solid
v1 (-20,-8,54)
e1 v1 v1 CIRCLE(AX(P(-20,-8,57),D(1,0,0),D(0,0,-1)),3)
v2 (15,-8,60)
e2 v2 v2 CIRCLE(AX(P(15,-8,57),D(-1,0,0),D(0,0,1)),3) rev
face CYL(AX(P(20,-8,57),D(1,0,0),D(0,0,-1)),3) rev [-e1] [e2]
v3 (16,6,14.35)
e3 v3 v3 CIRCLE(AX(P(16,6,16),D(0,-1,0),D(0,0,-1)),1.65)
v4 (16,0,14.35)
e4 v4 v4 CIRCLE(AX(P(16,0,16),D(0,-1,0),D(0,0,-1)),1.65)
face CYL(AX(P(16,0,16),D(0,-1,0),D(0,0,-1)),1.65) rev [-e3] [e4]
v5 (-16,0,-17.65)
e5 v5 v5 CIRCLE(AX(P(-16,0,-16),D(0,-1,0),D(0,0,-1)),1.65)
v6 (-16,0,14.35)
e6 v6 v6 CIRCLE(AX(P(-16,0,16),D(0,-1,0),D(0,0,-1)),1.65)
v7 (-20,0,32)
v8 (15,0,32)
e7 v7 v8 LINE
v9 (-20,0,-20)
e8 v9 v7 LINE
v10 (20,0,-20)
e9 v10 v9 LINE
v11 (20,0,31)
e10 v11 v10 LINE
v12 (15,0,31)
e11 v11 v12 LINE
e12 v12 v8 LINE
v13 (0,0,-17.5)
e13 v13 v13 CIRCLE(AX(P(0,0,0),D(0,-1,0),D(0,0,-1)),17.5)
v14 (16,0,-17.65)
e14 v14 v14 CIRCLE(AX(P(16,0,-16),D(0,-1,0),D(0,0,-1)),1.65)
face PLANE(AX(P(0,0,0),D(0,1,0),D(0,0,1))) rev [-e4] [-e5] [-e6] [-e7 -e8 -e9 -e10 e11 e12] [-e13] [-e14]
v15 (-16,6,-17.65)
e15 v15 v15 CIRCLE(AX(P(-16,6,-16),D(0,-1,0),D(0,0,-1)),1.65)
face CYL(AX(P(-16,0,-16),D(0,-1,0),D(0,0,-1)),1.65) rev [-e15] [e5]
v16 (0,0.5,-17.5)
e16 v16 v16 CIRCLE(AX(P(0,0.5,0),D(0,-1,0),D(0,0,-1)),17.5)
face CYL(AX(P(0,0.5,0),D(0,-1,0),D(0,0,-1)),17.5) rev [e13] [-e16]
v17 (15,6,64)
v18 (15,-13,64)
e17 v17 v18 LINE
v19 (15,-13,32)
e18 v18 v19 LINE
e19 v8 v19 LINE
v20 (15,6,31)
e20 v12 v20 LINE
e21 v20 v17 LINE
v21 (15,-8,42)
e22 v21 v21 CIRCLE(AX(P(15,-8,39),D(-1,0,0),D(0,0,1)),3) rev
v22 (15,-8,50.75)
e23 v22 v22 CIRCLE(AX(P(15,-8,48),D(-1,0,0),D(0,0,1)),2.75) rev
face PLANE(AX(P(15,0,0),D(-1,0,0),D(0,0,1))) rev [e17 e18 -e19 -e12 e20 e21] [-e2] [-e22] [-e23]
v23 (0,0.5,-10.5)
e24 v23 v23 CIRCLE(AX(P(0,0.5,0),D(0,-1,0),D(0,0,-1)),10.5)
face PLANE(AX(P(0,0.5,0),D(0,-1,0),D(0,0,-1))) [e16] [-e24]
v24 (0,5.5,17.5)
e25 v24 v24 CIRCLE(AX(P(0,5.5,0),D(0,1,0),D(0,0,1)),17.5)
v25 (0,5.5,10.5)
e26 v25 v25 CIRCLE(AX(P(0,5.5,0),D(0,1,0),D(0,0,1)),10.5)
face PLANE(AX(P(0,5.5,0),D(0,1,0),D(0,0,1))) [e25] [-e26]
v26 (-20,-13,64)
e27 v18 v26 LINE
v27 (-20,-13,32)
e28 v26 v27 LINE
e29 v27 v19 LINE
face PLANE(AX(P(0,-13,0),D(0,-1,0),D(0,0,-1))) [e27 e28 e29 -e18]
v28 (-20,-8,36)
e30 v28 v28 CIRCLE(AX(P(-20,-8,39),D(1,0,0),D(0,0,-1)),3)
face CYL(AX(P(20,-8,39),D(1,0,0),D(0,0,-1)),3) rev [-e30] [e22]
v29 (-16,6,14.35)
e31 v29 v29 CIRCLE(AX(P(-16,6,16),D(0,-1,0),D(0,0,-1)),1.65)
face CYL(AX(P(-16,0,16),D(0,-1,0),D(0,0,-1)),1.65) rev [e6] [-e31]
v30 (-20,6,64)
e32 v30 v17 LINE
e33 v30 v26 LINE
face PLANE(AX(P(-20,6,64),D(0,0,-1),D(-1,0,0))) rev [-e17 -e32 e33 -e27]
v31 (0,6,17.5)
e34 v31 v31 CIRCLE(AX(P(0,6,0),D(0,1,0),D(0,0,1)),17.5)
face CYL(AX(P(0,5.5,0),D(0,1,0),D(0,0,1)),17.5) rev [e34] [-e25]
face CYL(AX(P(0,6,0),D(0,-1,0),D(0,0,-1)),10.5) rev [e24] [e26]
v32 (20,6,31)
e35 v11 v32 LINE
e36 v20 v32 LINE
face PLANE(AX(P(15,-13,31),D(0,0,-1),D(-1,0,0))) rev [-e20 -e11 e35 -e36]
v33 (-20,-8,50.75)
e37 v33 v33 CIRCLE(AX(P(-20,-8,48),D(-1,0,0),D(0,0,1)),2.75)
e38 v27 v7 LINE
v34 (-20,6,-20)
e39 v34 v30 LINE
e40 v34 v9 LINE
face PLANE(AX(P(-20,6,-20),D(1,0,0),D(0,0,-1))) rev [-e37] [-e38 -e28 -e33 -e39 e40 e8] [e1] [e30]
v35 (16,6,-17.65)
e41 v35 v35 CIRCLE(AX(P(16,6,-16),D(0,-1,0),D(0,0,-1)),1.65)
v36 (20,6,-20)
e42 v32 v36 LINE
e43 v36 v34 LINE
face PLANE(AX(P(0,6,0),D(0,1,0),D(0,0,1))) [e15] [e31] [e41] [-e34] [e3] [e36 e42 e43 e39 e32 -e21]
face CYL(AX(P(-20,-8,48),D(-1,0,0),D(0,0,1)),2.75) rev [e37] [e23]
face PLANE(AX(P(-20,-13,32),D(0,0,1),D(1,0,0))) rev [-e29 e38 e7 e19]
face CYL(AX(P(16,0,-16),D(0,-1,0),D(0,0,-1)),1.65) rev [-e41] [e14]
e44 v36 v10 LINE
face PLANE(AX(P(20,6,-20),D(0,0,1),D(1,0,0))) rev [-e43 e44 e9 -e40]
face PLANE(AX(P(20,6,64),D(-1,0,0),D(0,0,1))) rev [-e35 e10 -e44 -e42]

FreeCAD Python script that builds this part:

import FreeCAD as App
import Part
import Sketcher


def add_polygon(sketch, points):
    """Adds a closed chain of lines whose ends are joined by coincident constraints."""
    first, n = sketch.GeometryCount, len(points)
    for a, b in zip(points, points[1:] + points[:1]):
        sketch.addGeometry(Part.LineSegment(App.Vector(*a, 0), App.Vector(*b, 0)), False)
    for i in range(n):
        sketch.addConstraint(Sketcher.Constraint("Coincident", first + i, 2, first + (i + 1) % n, 1))

doc = App.newDocument("Part")
body = doc.addObject("PartDesign::Body", "Body")

# Sketch on XZ plane
sketch1 = doc.addObject("Sketcher::SketchObject", "Sketch")
body.addObject(sketch1)
sketch1.AttachmentSupport = (doc.XZ_Plane, [""])
sketch1.MapMode = "FlatFace"
add_polygon(sketch1, [(-20, -20), (-20, 64), (20, 64), (20, -20)])  # lines 0-3
sketch1.addGeometry(Part.Circle(App.Vector(0, 0, 0), App.Vector(0, 0, 1), 10.5), False)  # 4
sketch1.addConstraint(Sketcher.Constraint("Vertical", 0))
sketch1.addConstraint(Sketcher.Constraint("Horizontal", 1))
sketch1.addConstraint(Sketcher.Constraint("Vertical", 2))
sketch1.addConstraint(Sketcher.Constraint("Horizontal", 3))
sketch1.addConstraint(Sketcher.Constraint("Coincident", 4, 3, -1, 1))
sketch1.addConstraint(Sketcher.Constraint("Diameter", 4, 21.0))
sketch1.addConstraint(Sketcher.Constraint("DistanceX", 1, 1, 1, 2, 40.0))
sketch1.addConstraint(Sketcher.Constraint("DistanceY", 0, 1, 0, 2, 84.0))
sketch1.addConstraint(Sketcher.Constraint("DistanceX", 0, 2, -1, 1, 20.0))
sketch1.addConstraint(Sketcher.Constraint("DistanceY", -1, 1, 0, 2, 64.0))
pad1 = doc.addObject("PartDesign::Pad", "Pad")
body.addObject(pad1)
pad1.Profile = sketch1
pad1.Length = 6
pad1.Reversed = True

# Sketch on XZ plane
sketch2 = doc.addObject("Sketcher::SketchObject", "Sketch001")
body.addObject(sketch2)
sketch2.AttachmentSupport = (doc.XZ_Plane, [""])
sketch2.MapMode = "FlatFace"
add_polygon(sketch2, [(-20, 64), (-20, 32), (20, 32), (20, 64)])  # lines 0-3
sketch2.addConstraint(Sketcher.Constraint("Vertical", 0))
sketch2.addConstraint(Sketcher.Constraint("Horizontal", 1))
sketch2.addConstraint(Sketcher.Constraint("Vertical", 2))
sketch2.addConstraint(Sketcher.Constraint("Horizontal", 3))
sketch2.addConstraint(Sketcher.Constraint("DistanceX", 1, 1, 1, 2, 40.0))
sketch2.addConstraint(Sketcher.Constraint("DistanceY", 0, 2, 0, 1, 32.0))
sketch2.addConstraint(Sketcher.Constraint("DistanceX", 0, 2, -1, 1, 20.0))
sketch2.addConstraint(Sketcher.Constraint("DistanceY", -1, 1, 0, 2, 32.0))
pad2 = doc.addObject("PartDesign::Pad", "Pad001")
body.addObject(pad2)
pad2.Profile = sketch2
pad2.Length = 13

# Sketch on YZ plane
sketch3 = doc.addObject("Sketcher::SketchObject", "Sketch002")
body.addObject(sketch3)
sketch3.AttachmentSupport = (doc.YZ_Plane, [""])
sketch3.MapMode = "FlatFace"
sketch3.AttachmentOffset = App.Placement(App.Vector(0, 0, 20), App.Rotation())
sketch3.addGeometry(Part.Circle(App.Vector(-8, 57, 0), App.Vector(0, 0, 1), 3), False)
sketch3.addGeometry(Part.Circle(App.Vector(-8, 39, 0), App.Vector(0, 0, 1), 3), False)
sketch3.addConstraint(Sketcher.Constraint("Equal", 0, 1))
sketch3.addConstraint(Sketcher.Constraint("Vertical", 0, 3, 1, 3))
sketch3.addConstraint(Sketcher.Constraint("Diameter", 0, 6.0))
sketch3.addConstraint(Sketcher.Constraint("DistanceX", 0, 3, -1, 1, 8.0))
sketch3.addConstraint(Sketcher.Constraint("DistanceY", -1, 1, 0, 3, 57.0))
sketch3.addConstraint(Sketcher.Constraint("DistanceY", -1, 1, 1, 3, 39.0))
doc.recompute()
hole = doc.addObject("PartDesign::Hole", "Hole")
body.addObject(hole)
hole.Profile = sketch3
hole.ThreadType = "None"
hole.Diameter = 6
hole.DepthType = "ThroughAll"

# Sketch on YZ plane
sketch4 = doc.addObject("Sketcher::SketchObject", "Sketch003")
body.addObject(sketch4)
sketch4.AttachmentSupport = (doc.YZ_Plane, [""])
sketch4.MapMode = "FlatFace"
sketch4.AttachmentOffset = App.Placement(App.Vector(0, 0, -20), App.Rotation())
sketch4.addGeometry(Part.Circle(App.Vector(-8, 48, 0), App.Vector(0, 0, 1), 2.75), False)
sketch4.addConstraint(Sketcher.Constraint("Diameter", 0, 5.5))
sketch4.addConstraint(Sketcher.Constraint("DistanceX", 0, 3, -1, 1, 8.0))
sketch4.addConstraint(Sketcher.Constraint("DistanceY", -1, 1, 0, 3, 48.0))
doc.recompute()
hole2 = doc.addObject("PartDesign::Hole", "Hole001")
body.addObject(hole2)
hole2.Profile = sketch4
hole2.ThreadType = "None"
hole2.Diameter = 5.5
hole2.DepthType = "ThroughAll"
hole2.Reversed = True

# Sketch on XZ plane
sketch5 = doc.addObject("Sketcher::SketchObject", "Sketch004")
body.addObject(sketch5)
sketch5.AttachmentSupport = (doc.XZ_Plane, [""])
sketch5.MapMode = "FlatFace"
sketch5.addGeometry(Part.Circle(App.Vector(-16, -16, 0), App.Vector(0, 0, 1), 1.65), False)
sketch5.addGeometry(Part.Circle(App.Vector(16, -16, 0), App.Vector(0, 0, 1), 1.65), False)
sketch5.addGeometry(Part.Circle(App.Vector(16, 16, 0), App.Vector(0, 0, 1), 1.65), False)
sketch5.addGeometry(Part.Circle(App.Vector(-16, 16, 0), App.Vector(0, 0, 1), 1.65), False)
sketch5.addConstraint(Sketcher.Constraint("Equal", 0, 1))
sketch5.addConstraint(Sketcher.Constraint("Equal", 1, 2))
sketch5.addConstraint(Sketcher.Constraint("Equal", 2, 3))
sketch5.addConstraint(Sketcher.Constraint("Symmetric", 0, 3, 2, 3, -1, 1))
sketch5.addConstraint(Sketcher.Constraint("Symmetric", 1, 3, 3, 3, -1, 1))
sketch5.addConstraint(Sketcher.Constraint("Symmetric", 0, 3, 1, 3, -2))
sketch5.addConstraint(Sketcher.Constraint("Diameter", 0, 3.3))
sketch5.addConstraint(Sketcher.Constraint("DistanceX", 0, 3, -1, 1, 16.0))
sketch5.addConstraint(Sketcher.Constraint("DistanceY", 0, 3, -1, 1, 16.0))
doc.recompute()
hole3 = doc.addObject("PartDesign::Hole", "Hole002")
body.addObject(hole3)
hole3.Profile = sketch5
hole3.ThreadType = "None"
hole3.Diameter = 3.3
hole3.DepthType = "ThroughAll"

# Sketch on XZ plane
sketch6 = doc.addObject("Sketcher::SketchObject", "Sketch005")
body.addObject(sketch6)
sketch6.AttachmentSupport = (doc.XZ_Plane, [""])
sketch6.MapMode = "FlatFace"
sketch6.AttachmentOffset = App.Placement(App.Vector(0, 0, -6), App.Rotation())
sketch6.addGeometry(Part.Circle(App.Vector(0, 0, 0), App.Vector(0, 0, 1), 17.5), False)
sketch6.addConstraint(Sketcher.Constraint("Coincident", 0, 3, -1, 1))
sketch6.addConstraint(Sketcher.Constraint("Diameter", 0, 35.0))
pocket1 = doc.addObject("PartDesign::Pocket", "Pocket")
body.addObject(pocket1)
pocket1.Profile = sketch6
pocket1.Length = 0.5
pocket1.Reversed = True

# Sketch on XZ plane
sketch7 = doc.addObject("Sketcher::SketchObject", "Sketch006")
body.addObject(sketch7)
sketch7.AttachmentSupport = (doc.XZ_Plane, [""])
sketch7.MapMode = "FlatFace"
sketch7.addGeometry(Part.Circle(App.Vector(0, 0, 0), App.Vector(0, 0, 1), 17.5), False)
sketch7.addConstraint(Sketcher.Constraint("Coincident", 0, 3, -1, 1))
sketch7.addConstraint(Sketcher.Constraint("Diameter", 0, 35.0))
pocket2 = doc.addObject("PartDesign::Pocket", "Pocket001")
body.addObject(pocket2)
pocket2.Profile = sketch7
pocket2.Length = 0.5

# Sketch on YZ plane
sketch8 = doc.addObject("Sketcher::SketchObject", "Sketch007")
body.addObject(sketch8)
sketch8.AttachmentSupport = (doc.YZ_Plane, [""])
sketch8.MapMode = "FlatFace"
sketch8.AttachmentOffset = App.Placement(App.Vector(0, 0, 20), App.Rotation())
add_polygon(sketch8, [(6, 64), (-13, 64), (-13, 31), (6, 31)])  # lines 0-3
sketch8.addConstraint(Sketcher.Constraint("Horizontal", 0))
sketch8.addConstraint(Sketcher.Constraint("Vertical", 1))
sketch8.addConstraint(Sketcher.Constraint("Horizontal", 2))
sketch8.addConstraint(Sketcher.Constraint("Vertical", 3))
sketch8.addConstraint(Sketcher.Constraint("DistanceX", 0, 2, 0, 1, 19.0))
sketch8.addConstraint(Sketcher.Constraint("DistanceY", 1, 2, 1, 1, 33.0))
sketch8.addConstraint(Sketcher.Constraint("DistanceX", 0, 2, -1, 1, 13.0))
sketch8.addConstraint(Sketcher.Constraint("DistanceY", -1, 1, 0, 2, 64.0))
pocket3 = doc.addObject("PartDesign::Pocket", "Pocket002")
body.addObject(pocket3)
pocket3.Profile = sketch8
pocket3.Length = 5

doc.recompute()
